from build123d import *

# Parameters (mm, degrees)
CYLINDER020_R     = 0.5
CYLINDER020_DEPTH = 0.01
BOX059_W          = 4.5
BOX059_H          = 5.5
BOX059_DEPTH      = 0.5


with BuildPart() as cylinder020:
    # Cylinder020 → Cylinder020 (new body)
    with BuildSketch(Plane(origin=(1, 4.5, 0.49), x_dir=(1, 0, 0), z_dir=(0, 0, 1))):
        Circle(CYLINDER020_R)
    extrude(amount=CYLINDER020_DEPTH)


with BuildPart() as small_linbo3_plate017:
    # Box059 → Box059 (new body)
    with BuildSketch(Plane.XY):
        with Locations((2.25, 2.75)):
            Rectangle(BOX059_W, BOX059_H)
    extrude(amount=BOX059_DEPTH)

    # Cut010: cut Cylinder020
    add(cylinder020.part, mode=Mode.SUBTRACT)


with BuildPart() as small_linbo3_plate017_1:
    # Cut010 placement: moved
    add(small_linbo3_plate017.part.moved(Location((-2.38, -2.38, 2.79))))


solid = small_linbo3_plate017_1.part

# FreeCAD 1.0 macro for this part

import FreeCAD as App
import Part
import Sketcher
Q = App.Units.Quantity

doc = App.newDocument("Part")
body = doc.addObject("PartDesign::Body", "Body")

# Sketch on XY plane
sketch1 = body.newObject("Sketcher::SketchObject", "Sketch")
sketch1.AttachmentSupport = (doc.getObject("XY_Plane"), [""])
sketch1.MapMode = "FlatFace"
sketch1.AttachmentOffset = App.Placement(App.Vector(0, 0, 0.49), App.Rotation())
sketch1.addGeometry(Part.Circle(App.Vector(1, 4.5, 0), App.Vector(0, 0, 1), 0.5), False)
sketch1.addConstraint([
    Sketcher.Constraint("Diameter", 0, Q("1 mm")),
    Sketcher.Constraint("DistanceX", -1, 1, 0, 3, Q("1 mm")),
    Sketcher.Constraint("DistanceY", -1, 1, 0, 3, Q("4.5 mm")),
])
pad1 = body.newObject("PartDesign::Pad", "Pad")
pad1.Profile = sketch1
pad1.Length = 0.01
body2 = doc.addObject("PartDesign::Body", "Body001")

# Sketch on XY plane
sketch2 = body2.newObject("Sketcher::SketchObject", "Sketch001")
sketch2.AttachmentSupport = (doc.getObject("XY_Plane001"), [""])
sketch2.MapMode = "FlatFace"
sketch2.addGeometry([
    Part.LineSegment(App.Vector(0, 5.5, 0), App.Vector(0, 0, 0)),
    Part.LineSegment(App.Vector(0, 0, 0), App.Vector(4.5, 0, 0)),
    Part.LineSegment(App.Vector(4.5, 0, 0), App.Vector(4.5, 5.5, 0)),
    Part.LineSegment(App.Vector(4.5, 5.5, 0), App.Vector(0, 5.5, 0)),
], False)
sketch2.addConstraint([
    Sketcher.Constraint("Coincident", 0, 2, 1, 1),
    Sketcher.Constraint("Coincident", 1, 2, 2, 1),
    Sketcher.Constraint("Coincident", 2, 2, 3, 1),
    Sketcher.Constraint("Coincident", 3, 2, 0, 1),
    Sketcher.Constraint("Vertical", 0),
    Sketcher.Constraint("Horizontal", 1),
    Sketcher.Constraint("Vertical", 2),
    Sketcher.Constraint("Horizontal", 3),
    Sketcher.Constraint("Coincident", 0, 2, -1, 1),
    Sketcher.Constraint("DistanceX", 1, 1, 1, 2, Q("4.5 mm")),
    Sketcher.Constraint("DistanceY", 0, 2, 0, 1, Q("5.5 mm")),
])
pad2 = body2.newObject("PartDesign::Pad", "Pad001")
pad2.Profile = sketch2
pad2.Length = 0.5
doc.recompute()

boolean = body2.newObject("PartDesign::Boolean", "Boolean")
boolean.Type = "Cut"
boolean.addObjects([body])
body3 = doc.addObject("PartDesign::Body", "Body002")
doc.recompute()

body2.Placement = App.Placement(App.Vector(-2.38, -2.38, 2.79), App.Rotation(App.Vector(0, 0, 1), 0))
boolean2 = body3.newObject("PartDesign::Boolean", "Boolean001")
boolean2.Type = "Fuse"
boolean2.addObjects([body2])

doc.recompute()
